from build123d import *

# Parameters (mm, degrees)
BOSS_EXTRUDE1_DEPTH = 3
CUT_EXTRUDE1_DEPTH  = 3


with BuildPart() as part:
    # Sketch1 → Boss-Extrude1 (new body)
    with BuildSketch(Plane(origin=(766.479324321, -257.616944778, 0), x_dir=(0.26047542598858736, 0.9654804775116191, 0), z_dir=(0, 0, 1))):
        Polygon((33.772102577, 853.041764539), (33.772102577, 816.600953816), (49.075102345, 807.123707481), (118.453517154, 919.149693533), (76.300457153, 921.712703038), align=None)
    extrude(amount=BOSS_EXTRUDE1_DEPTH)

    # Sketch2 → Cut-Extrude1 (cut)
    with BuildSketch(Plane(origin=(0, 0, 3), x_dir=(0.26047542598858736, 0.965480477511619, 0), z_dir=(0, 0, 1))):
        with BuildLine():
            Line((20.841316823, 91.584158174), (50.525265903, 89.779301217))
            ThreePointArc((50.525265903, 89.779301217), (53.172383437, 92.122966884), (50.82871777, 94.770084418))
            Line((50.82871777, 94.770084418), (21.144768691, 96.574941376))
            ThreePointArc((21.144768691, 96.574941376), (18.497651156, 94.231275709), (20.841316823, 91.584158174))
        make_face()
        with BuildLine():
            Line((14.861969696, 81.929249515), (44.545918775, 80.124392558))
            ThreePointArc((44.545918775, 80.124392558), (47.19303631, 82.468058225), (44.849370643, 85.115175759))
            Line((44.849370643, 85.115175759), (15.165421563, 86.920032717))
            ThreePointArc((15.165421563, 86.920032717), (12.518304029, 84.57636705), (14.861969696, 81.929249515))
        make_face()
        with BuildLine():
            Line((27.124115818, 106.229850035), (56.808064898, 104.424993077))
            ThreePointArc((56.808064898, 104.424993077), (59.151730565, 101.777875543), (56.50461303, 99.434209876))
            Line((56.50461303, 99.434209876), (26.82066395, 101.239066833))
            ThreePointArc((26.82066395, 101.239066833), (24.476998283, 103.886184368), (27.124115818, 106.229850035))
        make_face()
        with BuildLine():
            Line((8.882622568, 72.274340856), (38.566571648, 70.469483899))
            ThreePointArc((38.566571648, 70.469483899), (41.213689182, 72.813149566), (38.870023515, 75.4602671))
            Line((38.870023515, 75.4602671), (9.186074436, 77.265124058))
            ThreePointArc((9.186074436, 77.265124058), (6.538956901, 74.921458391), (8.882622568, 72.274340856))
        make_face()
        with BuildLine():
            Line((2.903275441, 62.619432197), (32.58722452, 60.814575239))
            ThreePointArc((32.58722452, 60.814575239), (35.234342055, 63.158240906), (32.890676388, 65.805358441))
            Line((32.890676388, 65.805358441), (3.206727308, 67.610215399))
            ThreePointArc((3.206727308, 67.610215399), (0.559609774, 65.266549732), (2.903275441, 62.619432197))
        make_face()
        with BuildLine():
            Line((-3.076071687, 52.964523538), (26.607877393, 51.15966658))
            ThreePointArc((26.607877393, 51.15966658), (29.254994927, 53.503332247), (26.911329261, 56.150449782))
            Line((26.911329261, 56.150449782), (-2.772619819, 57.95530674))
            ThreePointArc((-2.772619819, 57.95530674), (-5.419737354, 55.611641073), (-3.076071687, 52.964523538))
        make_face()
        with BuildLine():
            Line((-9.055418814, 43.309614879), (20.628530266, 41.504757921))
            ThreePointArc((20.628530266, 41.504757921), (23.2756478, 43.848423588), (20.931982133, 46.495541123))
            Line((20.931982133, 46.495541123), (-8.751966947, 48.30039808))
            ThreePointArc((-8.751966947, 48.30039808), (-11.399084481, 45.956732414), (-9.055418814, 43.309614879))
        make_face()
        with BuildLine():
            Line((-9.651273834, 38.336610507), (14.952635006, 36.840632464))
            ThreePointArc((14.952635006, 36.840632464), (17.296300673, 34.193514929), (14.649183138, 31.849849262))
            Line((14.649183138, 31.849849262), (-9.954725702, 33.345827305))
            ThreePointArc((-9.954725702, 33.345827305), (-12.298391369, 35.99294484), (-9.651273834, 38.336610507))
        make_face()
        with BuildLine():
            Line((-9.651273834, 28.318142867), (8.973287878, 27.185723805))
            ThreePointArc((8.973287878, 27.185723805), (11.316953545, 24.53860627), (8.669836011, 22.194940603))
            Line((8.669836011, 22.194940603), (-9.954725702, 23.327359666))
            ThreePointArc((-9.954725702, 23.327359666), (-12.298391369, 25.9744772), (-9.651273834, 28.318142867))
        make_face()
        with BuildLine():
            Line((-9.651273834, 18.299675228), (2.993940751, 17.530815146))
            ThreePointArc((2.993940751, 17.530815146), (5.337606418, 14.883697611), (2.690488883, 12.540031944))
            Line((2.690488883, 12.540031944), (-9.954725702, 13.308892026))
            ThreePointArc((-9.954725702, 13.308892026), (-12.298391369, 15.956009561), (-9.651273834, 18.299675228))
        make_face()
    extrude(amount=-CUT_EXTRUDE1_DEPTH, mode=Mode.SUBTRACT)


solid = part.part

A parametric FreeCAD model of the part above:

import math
import FreeCAD as App
import Part
import Sketcher


def add_polygon(sketch, points):
    """Adds a closed chain of lines whose ends are joined by coincident constraints."""
    first, n = sketch.GeometryCount, len(points)
    for a, b in zip(points, points[1:] + points[:1]):
        sketch.addGeometry(Part.LineSegment(App.Vector(*a, 0), App.Vector(*b, 0)), False)
    for i in range(n):
        sketch.addConstraint(Sketcher.Constraint("Coincident", first + i, 2, first + (i + 1) % n, 1))

doc = App.newDocument("Part")
body = doc.addObject("PartDesign::Body", "Body")

# Sketch on XY plane
sketch1 = body.newObject("Sketcher::SketchObject", "Sketch")
sketch1.AttachmentSupport = (doc.getObject("XY_Plane"), [""])
sketch1.MapMode = "FlatFace"
add_polygon(sketch1, [(-48, -3), (-13, -12), (0, 0), (-90, 96), (-104, 56)])  # lines 0-4
sketch1.addConstraint([
    Sketcher.Constraint("Coincident", 1, 2, -1, 1),
    Sketcher.Constraint("Perpendicular", 1, 2),
    Sketcher.Constraint("Parallel", 2, 4),
    Sketcher.Constraint("Distance", 1, 18.0),
    Sketcher.Constraint("Distance", 0, 36.440811),
    Sketcher.Constraint("DistanceX", 2, 2, -1, 1, 90.087531),
    Sketcher.Constraint("DistanceY", -1, 1, 2, 2, 96.163522),
    Sketcher.Constraint("DistanceX", 3, 2, 2, 2, 13.454372),
    Sketcher.Constraint("DistanceX", 4, 2, 0, 2, 35.182891),
])
pad1 = body.newObject("PartDesign::Pad", "Pad")
pad1.Profile = sketch1
pad1.Length = 3

# Sketch on XY plane
sketch2 = body.newObject("Sketcher::SketchObject", "Sketch001")
sketch2.AttachmentSupport = (doc.getObject("XY_Plane"), [""])
sketch2.MapMode = "FlatFace"
sketch2.AttachmentOffset = App.Placement(App.Vector(0, 0, 3), App.Rotation())
sketch2.addGeometry([
    Part.LineSegment(App.Vector(-83, 44, 0), App.Vector(-73.5, 72.2, 0)),  # 0
    Part.ArcOfCircle(Part.Circle(App.Vector(-75.9, 73, 0), App.Vector(0, 0, 1), 2.5), math.radians(-19), math.radians(161)),  # 1
    Part.LineSegment(App.Vector(-78.3, 73.8, 0), App.Vector(-87.7, 45.6, 0)),  # 2
    Part.ArcOfCircle(Part.Circle(App.Vector(-85.4, 44.8, 0), App.Vector(0, 0, 1), 2.5), math.radians(161), math.radians(341)),  # 3
    Part.LineSegment(App.Vector(-75.2, 35.7, 0), App.Vector(-65.8, 63.9, 0)),  # 4
    Part.ArcOfCircle(Part.Circle(App.Vector(-68.1, 64.7, 0), App.Vector(0, 0, 1), 2.5), math.radians(-19), math.radians(161)),  # 5
    Part.LineSegment(App.Vector(-70.5, 65.5, 0), App.Vector(-80, 37.3, 0)),  # 6
    Part.ArcOfCircle(Part.Circle(App.Vector(-77.6, 36.5, 0), App.Vector(0, 0, 1), 2.5), math.radians(161), math.radians(341)),  # 7
    Part.LineSegment(App.Vector(-86, 82, 0), App.Vector(-95.5, 53.9, 0)),  # 8
    Part.ArcOfCircle(Part.Circle(App.Vector(-93.1, 53.1, 0), App.Vector(0, 0, 1), 2.5), math.radians(161), math.radians(341)),  # 9
    Part.LineSegment(App.Vector(-90.8, 52.3, 0), App.Vector(-81.3, 80.5, 0)),  # 10
    Part.ArcOfCircle(Part.Circle(App.Vector(-83.7, 81.3, 0), App.Vector(0, 0, 1), 2.5), math.radians(-19), math.radians(161)),  # 11
    Part.LineSegment(App.Vector(-67.5, 27.4, 0), App.Vector(-58, 55.6, 0)),  # 12
    Part.ArcOfCircle(Part.Circle(App.Vector(-60.4, 56.4, 0), App.Vector(0, 0, 1), 2.5), math.radians(-19), math.radians(161)),  # 13
    Part.LineSegment(App.Vector(-62.7, 57.2, 0), App.Vector(-72.2, 29, 0)),  # 14
    Part.ArcOfCircle(Part.Circle(App.Vector(-69.8, 28.2, 0), App.Vector(0, 0, 1), 2.5), math.radians(161), math.radians(341)),  # 15
    Part.LineSegment(App.Vector(-59.7, 19.1, 0), App.Vector(-50.2, 47.3, 0)),  # 16
    Part.ArcOfCircle(Part.Circle(App.Vector(-52.6, 48.1, 0), App.Vector(0, 0, 1), 2.5), math.radians(-19), math.radians(161)),  # 17
    Part.LineSegment(App.Vector(-55, 48.9, 0), App.Vector(-64.4, 20.7, 0)),  # 18
    Part.ArcOfCircle(Part.Circle(App.Vector(-62.1, 19.9, 0), App.Vector(0, 0, 1), 2.5), math.radians(161), math.radians(341)),  # 19
    Part.LineSegment(App.Vector(-51.9, 10.8, 0), App.Vector(-42.5, 39, 0)),  # 20
    Part.ArcOfCircle(Part.Circle(App.Vector(-44.8, 39.8, 0), App.Vector(0, 0, 1), 2.5), math.radians(-19), math.radians(161)),  # 21
    Part.LineSegment(App.Vector(-47.2, 40.6, 0), App.Vector(-56.7, 12.4, 0)),  # 22
    Part.ArcOfCircle(Part.Circle(App.Vector(-54.3, 11.6, 0), App.Vector(0, 0, 1), 2.5), math.radians(161), math.radians(341)),  # 23
    Part.LineSegment(App.Vector(-44.2, 2.5, 0), App.Vector(-34.7, 30.7, 0)),  # 24
    Part.ArcOfCircle(Part.Circle(App.Vector(-37.1, 31.5, 0), App.Vector(0, 0, 1), 2.5), math.radians(-19), math.radians(161)),  # 25
    Part.LineSegment(App.Vector(-39.4, 32.3, 0), App.Vector(-48.9, 4.1, 0)),  # 26
    Part.ArcOfCircle(Part.Circle(App.Vector(-46.5, 3.3, 0), App.Vector(0, 0, 1), 2.5), math.radians(161), math.radians(341)),  # 27
    Part.LineSegment(App.Vector(-31.7, 24, 0), App.Vector(-39.5, 0.7, 0)),  # 28
    Part.ArcOfCircle(Part.Circle(App.Vector(-37.2, -0.1, 0), App.Vector(0, 0, 1), 2.5), math.radians(161), math.radians(341)),  # 29
    Part.LineSegment(App.Vector(-34.8, -0.9, 0), App.Vector(-26.9, 22.4, 0)),  # 30
    Part.ArcOfCircle(Part.Circle(App.Vector(-29.3, 23.2, 0), App.Vector(0, 0, 1), 2.5), math.radians(-19), math.radians(161)),  # 31
    Part.LineSegment(App.Vector(-23.9, 15.7, 0), App.Vector(-29.9, -1.9, 0)),  # 32
    Part.ArcOfCircle(Part.Circle(App.Vector(-27.5, -2.7, 0), App.Vector(0, 0, 1), 2.5), math.radians(161), math.radians(341)),  # 33
    Part.LineSegment(App.Vector(-25.1, -3.5, 0), App.Vector(-19.2, 14.2, 0)),  # 34
    Part.ArcOfCircle(Part.Circle(App.Vector(-21.5, 14.9, 0), App.Vector(0, 0, 1), 2.5), math.radians(-19), math.radians(161)),  # 35
    Part.LineSegment(App.Vector(-16.1, 7.5, 0), App.Vector(-20.2, -4.6, 0)),  # 36
    Part.ArcOfCircle(Part.Circle(App.Vector(-17.8, -5.3, 0), App.Vector(0, 0, 1), 2.5), math.radians(161), math.radians(341)),  # 37
    Part.LineSegment(App.Vector(-15.4, -6.1, 0), App.Vector(-11.4, 5.9, 0)),  # 38
    Part.ArcOfCircle(Part.Circle(App.Vector(-13.8, 6.7, 0), App.Vector(0, 0, 1), 2.5), math.radians(-19), math.radians(161)),  # 39
], False)
sketch2.addConstraint([
    Sketcher.Constraint("Tangent", 0, 2, 1, 1),
    Sketcher.Constraint("Tangent", 1, 2, 2, 1),
    Sketcher.Constraint("Tangent", 2, 2, 3, 1),
    Sketcher.Constraint("Tangent", 3, 2, 0, 1),
    Sketcher.Constraint("Tangent", 4, 2, 5, 1),
    Sketcher.Constraint("Tangent", 5, 2, 6, 1),
    Sketcher.Constraint("Tangent", 6, 2, 7, 1),
    Sketcher.Constraint("Tangent", 7, 2, 4, 1),
    Sketcher.Constraint("Tangent", 8, 2, 9, 1),
    Sketcher.Constraint("Tangent", 9, 2, 10, 1),
    Sketcher.Constraint("Tangent", 10, 2, 11, 1),
    Sketcher.Constraint("Tangent", 11, 2, 8, 1),
    Sketcher.Constraint("Tangent", 12, 2, 13, 1),
    Sketcher.Constraint("Tangent", 13, 2, 14, 1),
    Sketcher.Constraint("Tangent", 14, 2, 15, 1),
    Sketcher.Constraint("Tangent", 15, 2, 12, 1),
    Sketcher.Constraint("Tangent", 16, 2, 17, 1),
    Sketcher.Constraint("Tangent", 17, 2, 18, 1),
    Sketcher.Constraint("Tangent", 18, 2, 19, 1),
    Sketcher.Constraint("Tangent", 19, 2, 16, 1),
    Sketcher.Constraint("Tangent", 20, 2, 21, 1),
    Sketcher.Constraint("Tangent", 21, 2, 22, 1),
    Sketcher.Constraint("Tangent", 22, 2, 23, 1),
    Sketcher.Constraint("Tangent", 23, 2, 20, 1),
    Sketcher.Constraint("Tangent", 24, 2, 25, 1),
    Sketcher.Constraint("Tangent", 25, 2, 26, 1),
    Sketcher.Constraint("Tangent", 26, 2, 27, 1),
    Sketcher.Constraint("Tangent", 27, 2, 24, 1),
    Sketcher.Constraint("Tangent", 28, 2, 29, 1),
    Sketcher.Constraint("Tangent", 29, 2, 30, 1),
    Sketcher.Constraint("Tangent", 30, 2, 31, 1),
    Sketcher.Constraint("Tangent", 31, 2, 28, 1),
    Sketcher.Constraint("Tangent", 32, 2, 33, 1),
    Sketcher.Constraint("Tangent", 33, 2, 34, 1),
    Sketcher.Constraint("Tangent", 34, 2, 35, 1),
    Sketcher.Constraint("Tangent", 35, 2, 32, 1),
    Sketcher.Constraint("Tangent", 36, 2, 37, 1),
    Sketcher.Constraint("Tangent", 37, 2, 38, 1),
    Sketcher.Constraint("Tangent", 38, 2, 39, 1),
    Sketcher.Constraint("Tangent", 39, 2, 36, 1),
    Sketcher.Constraint("Equal", 1, 3),
    Sketcher.Constraint("Equal", 3, 5),
    Sketcher.Constraint("Equal", 5, 7),
    Sketcher.Constraint("Equal", 7, 9),
    Sketcher.Constraint("Equal", 9, 11),
    Sketcher.Constraint("Equal", 11, 13),
    Sketcher.Constraint("Equal", 13, 15),
    Sketcher.Constraint("Equal", 15, 17),
    Sketcher.Constraint("Equal", 17, 19),
    Sketcher.Constraint("Equal", 19, 21),
    Sketcher.Constraint("Equal", 21, 23),
    Sketcher.Constraint("Equal", 23, 25),
    Sketcher.Constraint("Equal", 25, 27),
    Sketcher.Constraint("Equal", 27, 29),
    Sketcher.Constraint("Equal", 29, 31),
    Sketcher.Constraint("Equal", 31, 33),
    Sketcher.Constraint("Equal", 33, 35),
    Sketcher.Constraint("Equal", 35, 37),
    Sketcher.Constraint("Equal", 37, 39),
    Sketcher.Constraint("Parallel", 2, 4),
    Sketcher.Constraint("Parallel", 6, 8),
    Sketcher.Constraint("Parallel", 10, 12),
    Sketcher.Constraint("Parallel", 14, 16),
    Sketcher.Constraint("Parallel", 18, 20),
    Sketcher.Constraint("Parallel", 22, 24),
    Sketcher.Constraint("Parallel", 26, 28),
    Sketcher.Constraint("Parallel", 30, 32),
    Sketcher.Constraint("Parallel", 34, 36),
    Sketcher.Constraint("Equal", 2, 4),
    Sketcher.Constraint("Equal", 6, 8),
    Sketcher.Constraint("Equal", 10, 12),
    Sketcher.Constraint("Equal", 14, 16),
    Sketcher.Constraint("Equal", 18, 20),
    Sketcher.Constraint("Equal", 22, 24),
    Sketcher.Constraint("Radius", 1, 2.5),
    Sketcher.Constraint("DistanceY", -1, 1, 21, 3, 39.811699),
    Sketcher.Constraint("DistanceX", 27, 2, -1, 1, 44.173302),
    Sketcher.Constraint("DistanceX", 36, 2, -1, 1, 20.181899),
    Sketcher.Constraint("DistanceY", 36, 2, -1, 1, 4.551501),
    Sketcher.Constraint("DistanceX", 9, 3, 5, 3, 25.002799),
    Sketcher.Constraint("DistanceX", 3, 3, 13, 3, 25.002799),
    Sketcher.Constraint("DistanceX", 7, 3, 17, 3, 25.002799),
    Sketcher.Constraint("DistanceX", 15, 3, 21, 3, 25.002799),
    Sketcher.Constraint("DistanceX", 19, 3, 25, 3, 25.002799),
    Sketcher.Constraint("DistanceX", 29, 3, 25, 3, 0.088898),
    Sketcher.Constraint("DistanceX", 23, 3, 31, 3, 25.002799),
    Sketcher.Constraint("DistanceX", 27, 3, 35, 3, 25.002799),
    Sketcher.Constraint("Distance", 0, 29.738768),
    Sketcher.Constraint("DistanceX", 5, 3, -1, 1, 68.125151),
    Sketcher.Constraint("DistanceX", 15, 3, -1, 1, 69.835491),
    Sketcher.Constraint("DistanceY", -1, 1, 17, 3, 48.099508),
    Sketcher.Constraint("DistanceY", -1, 1, 25, 3, 31.523889),
    Sketcher.Constraint("DistanceY", 29, 3, -1, 1, 0.128848),
    Sketcher.Constraint("DistanceY", -1, 1, 35, 3, 14.948271),
    Sketcher.Constraint("DistanceX", 39, 3, -1, 1, 13.776081),
    Sketcher.Constraint("DistanceY", -1, 1, 0, 2, 72.16646),
    Sketcher.Constraint("DistanceY", -1, 1, 4, 2, 63.87865),
    Sketcher.Constraint("DistanceY", -1, 1, 8, 2, 53.85807),
    Sketcher.Constraint("DistanceY", -1, 1, 12, 2, 55.590841),
    Sketcher.Constraint("DistanceX", 33, 2, -1, 1, 25.115072),
])
pocket1 = body.newObject("PartDesign::Pocket", "Pocket")
pocket1.Profile = sketch2
pocket1.Length = 3

doc.recompute()
